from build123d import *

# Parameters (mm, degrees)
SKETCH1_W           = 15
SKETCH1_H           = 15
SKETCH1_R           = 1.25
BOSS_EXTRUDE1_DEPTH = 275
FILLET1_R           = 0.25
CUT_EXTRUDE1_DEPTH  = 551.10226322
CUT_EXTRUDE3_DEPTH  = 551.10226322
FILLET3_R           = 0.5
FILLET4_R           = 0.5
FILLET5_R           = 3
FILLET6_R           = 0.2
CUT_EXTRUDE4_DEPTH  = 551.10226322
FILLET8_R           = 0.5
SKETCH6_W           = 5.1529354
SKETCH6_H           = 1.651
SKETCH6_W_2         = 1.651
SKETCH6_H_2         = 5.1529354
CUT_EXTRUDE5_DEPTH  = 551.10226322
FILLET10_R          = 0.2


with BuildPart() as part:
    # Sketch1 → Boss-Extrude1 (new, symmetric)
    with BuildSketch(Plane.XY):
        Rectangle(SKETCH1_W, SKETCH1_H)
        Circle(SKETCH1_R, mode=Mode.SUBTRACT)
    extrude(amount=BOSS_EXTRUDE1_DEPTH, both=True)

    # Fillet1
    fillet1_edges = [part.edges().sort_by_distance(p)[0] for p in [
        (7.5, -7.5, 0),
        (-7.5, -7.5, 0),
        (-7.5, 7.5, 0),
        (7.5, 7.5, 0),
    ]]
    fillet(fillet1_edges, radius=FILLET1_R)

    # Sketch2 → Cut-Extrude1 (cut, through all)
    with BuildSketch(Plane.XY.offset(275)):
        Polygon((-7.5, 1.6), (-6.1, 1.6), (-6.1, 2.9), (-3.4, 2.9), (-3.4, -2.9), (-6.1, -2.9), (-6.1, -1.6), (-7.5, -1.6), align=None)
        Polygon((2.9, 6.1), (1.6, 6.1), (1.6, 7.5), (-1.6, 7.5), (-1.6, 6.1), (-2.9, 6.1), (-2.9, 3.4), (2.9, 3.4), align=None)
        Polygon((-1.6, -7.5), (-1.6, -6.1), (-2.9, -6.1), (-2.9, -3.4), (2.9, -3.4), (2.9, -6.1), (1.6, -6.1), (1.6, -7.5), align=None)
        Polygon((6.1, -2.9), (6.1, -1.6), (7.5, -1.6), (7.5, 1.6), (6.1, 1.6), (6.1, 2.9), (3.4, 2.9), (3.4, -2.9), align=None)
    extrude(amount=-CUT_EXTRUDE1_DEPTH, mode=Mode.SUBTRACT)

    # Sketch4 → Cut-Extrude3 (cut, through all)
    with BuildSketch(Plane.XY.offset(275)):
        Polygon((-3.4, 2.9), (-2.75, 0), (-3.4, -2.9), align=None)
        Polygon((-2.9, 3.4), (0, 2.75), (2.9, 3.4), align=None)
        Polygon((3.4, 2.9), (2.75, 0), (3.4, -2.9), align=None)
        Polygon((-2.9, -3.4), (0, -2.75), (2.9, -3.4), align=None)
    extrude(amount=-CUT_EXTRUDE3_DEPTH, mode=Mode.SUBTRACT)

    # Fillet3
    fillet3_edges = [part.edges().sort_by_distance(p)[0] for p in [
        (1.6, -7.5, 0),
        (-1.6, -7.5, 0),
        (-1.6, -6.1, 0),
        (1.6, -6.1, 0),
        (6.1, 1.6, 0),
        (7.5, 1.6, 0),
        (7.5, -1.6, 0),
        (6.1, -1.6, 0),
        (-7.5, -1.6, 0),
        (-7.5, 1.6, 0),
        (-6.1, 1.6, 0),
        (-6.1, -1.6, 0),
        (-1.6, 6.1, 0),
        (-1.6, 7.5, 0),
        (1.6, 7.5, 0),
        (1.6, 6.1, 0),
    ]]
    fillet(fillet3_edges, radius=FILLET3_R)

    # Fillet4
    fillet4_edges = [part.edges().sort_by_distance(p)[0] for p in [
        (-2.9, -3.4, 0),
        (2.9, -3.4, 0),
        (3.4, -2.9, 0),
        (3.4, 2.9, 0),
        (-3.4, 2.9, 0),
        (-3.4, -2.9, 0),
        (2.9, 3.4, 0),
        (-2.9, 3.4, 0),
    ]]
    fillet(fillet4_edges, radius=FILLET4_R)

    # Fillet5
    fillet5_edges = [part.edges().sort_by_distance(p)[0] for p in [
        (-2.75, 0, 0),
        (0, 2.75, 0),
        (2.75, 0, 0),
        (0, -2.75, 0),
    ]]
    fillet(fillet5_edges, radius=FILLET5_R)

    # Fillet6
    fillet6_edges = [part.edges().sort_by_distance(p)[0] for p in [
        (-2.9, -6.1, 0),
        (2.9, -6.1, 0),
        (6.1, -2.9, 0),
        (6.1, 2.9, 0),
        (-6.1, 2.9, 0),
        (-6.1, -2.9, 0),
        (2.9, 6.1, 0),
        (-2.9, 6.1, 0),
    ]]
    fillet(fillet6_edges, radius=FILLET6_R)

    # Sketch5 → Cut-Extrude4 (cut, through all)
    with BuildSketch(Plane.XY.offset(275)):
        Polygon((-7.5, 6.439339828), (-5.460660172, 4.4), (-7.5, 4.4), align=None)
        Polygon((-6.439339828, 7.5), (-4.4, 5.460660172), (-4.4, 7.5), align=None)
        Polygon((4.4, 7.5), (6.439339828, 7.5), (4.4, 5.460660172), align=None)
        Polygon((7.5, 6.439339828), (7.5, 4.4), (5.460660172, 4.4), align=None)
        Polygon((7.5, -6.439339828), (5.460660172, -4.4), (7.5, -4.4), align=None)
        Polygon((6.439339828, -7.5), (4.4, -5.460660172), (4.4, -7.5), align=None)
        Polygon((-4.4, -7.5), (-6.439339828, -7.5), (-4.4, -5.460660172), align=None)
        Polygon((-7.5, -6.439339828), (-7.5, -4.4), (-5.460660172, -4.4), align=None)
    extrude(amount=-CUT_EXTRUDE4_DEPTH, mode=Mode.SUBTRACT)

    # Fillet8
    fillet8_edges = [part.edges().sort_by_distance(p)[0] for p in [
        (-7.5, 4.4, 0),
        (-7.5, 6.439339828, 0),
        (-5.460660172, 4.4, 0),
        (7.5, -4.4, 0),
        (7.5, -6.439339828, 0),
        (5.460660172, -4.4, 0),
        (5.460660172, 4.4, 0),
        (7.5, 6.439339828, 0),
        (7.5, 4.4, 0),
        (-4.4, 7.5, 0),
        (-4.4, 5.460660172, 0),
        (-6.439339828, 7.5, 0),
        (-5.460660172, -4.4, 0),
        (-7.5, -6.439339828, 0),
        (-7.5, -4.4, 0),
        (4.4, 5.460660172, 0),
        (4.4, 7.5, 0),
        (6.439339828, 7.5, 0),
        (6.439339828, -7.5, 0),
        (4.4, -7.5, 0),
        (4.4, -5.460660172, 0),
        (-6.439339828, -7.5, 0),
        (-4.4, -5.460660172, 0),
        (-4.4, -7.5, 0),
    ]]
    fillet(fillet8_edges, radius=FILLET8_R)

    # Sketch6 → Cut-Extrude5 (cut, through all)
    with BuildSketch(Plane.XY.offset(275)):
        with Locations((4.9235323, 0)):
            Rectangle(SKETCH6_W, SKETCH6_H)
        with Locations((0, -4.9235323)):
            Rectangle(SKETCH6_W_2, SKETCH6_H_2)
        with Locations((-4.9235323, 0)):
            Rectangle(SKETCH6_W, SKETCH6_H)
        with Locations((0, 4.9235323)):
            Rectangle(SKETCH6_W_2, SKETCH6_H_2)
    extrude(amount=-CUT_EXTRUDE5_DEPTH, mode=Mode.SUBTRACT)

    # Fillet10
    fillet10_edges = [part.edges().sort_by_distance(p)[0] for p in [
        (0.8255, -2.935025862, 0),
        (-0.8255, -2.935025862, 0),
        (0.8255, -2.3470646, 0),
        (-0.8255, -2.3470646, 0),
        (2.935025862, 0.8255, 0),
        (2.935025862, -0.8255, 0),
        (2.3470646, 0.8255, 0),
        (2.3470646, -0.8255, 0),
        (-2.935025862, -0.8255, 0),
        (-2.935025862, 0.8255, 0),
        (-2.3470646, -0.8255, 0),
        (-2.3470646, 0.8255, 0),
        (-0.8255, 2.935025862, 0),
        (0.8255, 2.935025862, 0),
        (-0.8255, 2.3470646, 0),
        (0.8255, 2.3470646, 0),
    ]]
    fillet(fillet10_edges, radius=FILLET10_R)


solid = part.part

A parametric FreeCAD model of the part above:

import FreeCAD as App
import Part
import Sketcher

V = App.Vector


def edges_at(feature, points):
    """Names of the edges that pass closest to the given points."""
    edges = feature.Shape.Edges
    near = lambda p: min(range(len(edges)), key=lambda i: edges[i].distToShape(Part.Vertex(*p))[0])
    return sorted({f"Edge{near(p) + 1}" for p in points})


def add_polygon(sketch, points):
    """Adds a closed chain of lines whose ends are joined by coincident constraints."""
    first, n = sketch.GeometryCount, len(points)
    for a, b in zip(points, points[1:] + points[:1]):
        sketch.addGeometry(Part.LineSegment(App.Vector(*a, 0), App.Vector(*b, 0)), False)
    for i in range(n):
        sketch.addConstraint(Sketcher.Constraint("Coincident", first + i, 2, first + (i + 1) % n, 1))

doc = App.newDocument("Part")
body = doc.addObject("PartDesign::Body", "Body")

# Sketch on XY plane
sketch1 = body.newObject("Sketcher::SketchObject", "Sketch")
sketch1.AttachmentSupport = (doc.getObject("XY_Plane"), [""])
sketch1.MapMode = "FlatFace"
add_polygon(sketch1, [(-7.5, 7.5), (-7.5, -7.5), (7.5, -7.5), (7.5, 7.5)])  # lines 0-3
sketch1.addGeometry(Part.Circle(V(0, 0, 0), V(0, 0, 1), 1.2), False)  # 4
sketch1.addConstraint([
    Sketcher.Constraint("Vertical", 0),
    Sketcher.Constraint("Horizontal", 1),
    Sketcher.Constraint("Vertical", 2),
    Sketcher.Constraint("Horizontal", 3),
    Sketcher.Constraint("Coincident", 4, 3, -1, 1),
    Sketcher.Constraint("Symmetric", 0, 2, 2, 2, -1, 1),
    Sketcher.Constraint("Equal", 3, 0),
    Sketcher.Constraint("Diameter", 4, 2.5),
    Sketcher.Constraint("DistanceX", 1, 1, 1, 2, 15.0),
])
pad1 = body.newObject("PartDesign::Pad", "Pad")
pad1.Profile = sketch1
pad1.Length = 550
pad1.Midplane = True
doc.recompute()

fillet = body.newObject("PartDesign::Fillet", "Fillet")
fillet.Base = (pad1, edges_at(pad1, [
    (7.5, -7.5, 0),
    (-7.5, -7.5, 0),
    (-7.5, 7.5, 0),
    (7.5, 7.5, 0),
]))
fillet.Radius = 0.25

# Sketch on XY plane
sketch2 = body.newObject("Sketcher::SketchObject", "Sketch001")
sketch2.AttachmentSupport = (doc.getObject("XY_Plane"), [""])
sketch2.MapMode = "FlatFace"
sketch2.AttachmentOffset = App.Placement(V(0, 0, 275), App.Rotation())
add_polygon(sketch2, [(-6.1, 1.6), (-7.5, 1.6), (-7.5, -1.6), (-6.1, -1.6), (-6.1, -2.9), (-3.4, -2.9), (-3.4, 2.9), (-6.1, 2.9)])  # lines 0-7
add_polygon(sketch2, [(2.9, 6.1), (1.6, 6.1), (1.6, 7.5), (-1.6, 7.5), (-1.6, 6.1), (-2.9, 6.1), (-2.9, 3.4), (2.9, 3.4)])  # lines 8-15
add_polygon(sketch2, [(-1.6, -6.1), (-1.6, -7.5), (1.6, -7.5), (1.6, -6.1), (2.9, -6.1), (2.9, -3.4), (-2.9, -3.4), (-2.9, -6.1)])  # lines 16-23
add_polygon(sketch2, [(6.1, -2.9), (6.1, -1.6), (7.5, -1.6), (7.5, 1.6), (6.1, 1.6), (6.1, 2.9), (3.4, 2.9), (3.4, -2.9)])  # lines 24-31
sketch2.addConstraint([
    Sketcher.Constraint("Horizontal", 0),
    Sketcher.Constraint("Vertical", 1),
    Sketcher.Constraint("Horizontal", 2),
    Sketcher.Constraint("Vertical", 3),
    Sketcher.Constraint("Horizontal", 4),
    Sketcher.Constraint("Vertical", 5),
    Sketcher.Constraint("Horizontal", 6),
    Sketcher.Constraint("Vertical", 7),
    Sketcher.Constraint("Horizontal", 8),
    Sketcher.Constraint("Vertical", 9),
    Sketcher.Constraint("Horizontal", 10),
    Sketcher.Constraint("Vertical", 11),
    Sketcher.Constraint("Horizontal", 12),
    Sketcher.Constraint("Vertical", 13),
    Sketcher.Constraint("Horizontal", 14),
    Sketcher.Constraint("Vertical", 15),
    Sketcher.Constraint("Vertical", 16),
    Sketcher.Constraint("Horizontal", 17),
    Sketcher.Constraint("Vertical", 18),
    Sketcher.Constraint("Horizontal", 19),
    Sketcher.Constraint("Vertical", 20),
    Sketcher.Constraint("Horizontal", 21),
    Sketcher.Constraint("Vertical", 22),
    Sketcher.Constraint("Horizontal", 23),
    Sketcher.Constraint("Vertical", 24),
    Sketcher.Constraint("Horizontal", 25),
    Sketcher.Constraint("Vertical", 26),
    Sketcher.Constraint("Horizontal", 27),
    Sketcher.Constraint("Vertical", 28),
    Sketcher.Constraint("Horizontal", 29),
    Sketcher.Constraint("Vertical", 30),
    Sketcher.Constraint("Horizontal", 31),
    Sketcher.Constraint("Symmetric", 9, 2, 16, 2, -1, 1),
    Sketcher.Constraint("Symmetric", 11, 2, 18, 2, -1, 1),
    Sketcher.Constraint("Symmetric", 13, 2, 20, 2, -1, 1),
    Sketcher.Constraint("Symmetric", 15, 2, 22, 2, -1, 1),
    Sketcher.Constraint("Symmetric", 7, 2, 24, 2, -1, 1),
    Sketcher.Constraint("Symmetric", 1, 2, 26, 2, -1, 1),
    Sketcher.Constraint("Symmetric", 3, 2, 28, 2, -1, 1),
    Sketcher.Constraint("Symmetric", 5, 2, 30, 2, -1, 1),
    Sketcher.Constraint("Symmetric", 8, 2, 11, 2, -2),
    Sketcher.Constraint("Symmetric", 2, 2, 24, 2, -2),
    Sketcher.Constraint("Horizontal", 6, 2, 28, 2),
    Sketcher.Constraint("Vertical", 15, 2, 19, 2),
    Sketcher.Constraint("Equal", 17, 1),
    Sketcher.Constraint("Equal", 23, 3),
    Sketcher.Constraint("Equal", 27, 9),
    Sketcher.Constraint("Equal", 31, 13),
    Sketcher.Constraint("DistanceX", 0, 2, 0, 1, 1.4),
    Sketcher.Constraint("DistanceX", 4, 1, 4, 2, 2.7),
    Sketcher.Constraint("DistanceX", 8, 2, 8, 1, 1.3),
    Sketcher.Constraint("DistanceX", 10, 2, 10, 1, 3.2),
    Sketcher.Constraint("DistanceX", 5, 2, 8, 2, 5.0),
    Sketcher.Constraint("DistanceY", 4, 2, 8, 2, 9.0),
])
pocket1 = body.newObject("PartDesign::Pocket", "Pocket")
pocket1.Profile = sketch2
pocket1.Type = "ThroughAll"

# Sketch on XY plane
sketch3 = body.newObject("Sketcher::SketchObject", "Sketch002")
sketch3.AttachmentSupport = (doc.getObject("XY_Plane"), [""])
sketch3.MapMode = "FlatFace"
sketch3.AttachmentOffset = App.Placement(V(0, 0, 275), App.Rotation())
add_polygon(sketch3, [(-2.8, 0), (-3.4, 2.9), (-3.4, -2.9)])  # lines 0-2
add_polygon(sketch3, [(-2.9, 3.4), (0, 2.8), (2.9, 3.4)])  # lines 3-5
add_polygon(sketch3, [(3.4, 2.9), (2.8, 0), (3.4, -2.9)])  # lines 6-8
add_polygon(sketch3, [(0, -2.8), (-2.9, -3.4), (2.9, -3.4)])  # lines 9-11
sketch3.addConstraint([
    Sketcher.Constraint("Vertical", 1),
    Sketcher.Constraint("Horizontal", 5),
    Sketcher.Constraint("Vertical", 8),
    Sketcher.Constraint("Horizontal", 10),
    Sketcher.Constraint("Symmetric", 2, 2, 6, 2, -1, 1),
    Sketcher.Constraint("Symmetric", 0, 2, 7, 2, -1, 1),
    Sketcher.Constraint("Symmetric", 4, 2, 9, 2, -1, 1),
    Sketcher.Constraint("Symmetric", 3, 2, 11, 2, -1, 1),
    Sketcher.Constraint("PointOnObject", 2, 2, -1),
    Sketcher.Constraint("PointOnObject", 3, 2, -2),
    Sketcher.Constraint("Perpendicular", 2, 3),
    Sketcher.Constraint("Perpendicular", 0, 4),
    Sketcher.Constraint("Perpendicular", 3, 6),
    Sketcher.Constraint("Perpendicular", 6, 11),
    Sketcher.Constraint("Horizontal", 1, 2, 7, 2),
    Sketcher.Constraint("Equal", 10, 1),
    Sketcher.Constraint("DistanceX", 5, 2, 5, 1, 5.8),
    Sketcher.Constraint("DistanceX", 0, 2, -1, 1, 3.4),
    Sketcher.Constraint("DistanceY", -1, 1, 4, 2, 3.4),
    Sketcher.Constraint("DistanceX", 2, 2, 6, 2, 5.5),
])
pocket2 = body.newObject("PartDesign::Pocket", "Pocket001")
pocket2.Profile = sketch3
pocket2.Type = "ThroughAll"
doc.recompute()

fillet2 = body.newObject("PartDesign::Fillet", "Fillet001")
fillet2.Base = (pocket2, edges_at(pocket2, [
    (1.6, -7.5, 0),
    (-1.6, -7.5, 0),
    (-1.6, -6.1, 0),
    (1.6, -6.1, 0),
    (6.1, 1.6, 0),
    (7.5, 1.6, 0),
    (7.5, -1.6, 0),
    (6.1, -1.6, 0),
    (-7.5, -1.6, 0),
    (-7.5, 1.6, 0),
    (-6.1, 1.6, 0),
    (-6.1, -1.6, 0),
    (-1.6, 6.1, 0),
    (-1.6, 7.5, 0),
    (1.6, 7.5, 0),
    (1.6, 6.1, 0),
]))
fillet2.Radius = 0.5
doc.recompute()

fillet3 = body.newObject("PartDesign::Fillet", "Fillet002")
fillet3.Base = (fillet2, edges_at(fillet2, [
    (-2.9, -3.4, 0),
    (2.9, -3.4, 0),
    (3.4, -2.9, 0),
    (3.4, 2.9, 0),
    (-3.4, 2.9, 0),
    (-3.4, -2.9, 0),
    (2.9, 3.4, 0),
    (-2.9, 3.4, 0),
]))
fillet3.Radius = 0.5
doc.recompute()

fillet4 = body.newObject("PartDesign::Fillet", "Fillet003")
fillet4.Base = (fillet3, edges_at(fillet3, [
    (-2.75, 0, 0),
    (0, 2.75, 0),
    (2.75, 0, 0),
    (0, -2.75, 0),
]))
fillet4.Radius = 3
doc.recompute()

fillet5 = body.newObject("PartDesign::Fillet", "Fillet004")
fillet5.Base = (fillet4, edges_at(fillet4, [
    (-2.9, -6.1, 0),
    (2.9, -6.1, 0),
    (6.1, -2.9, 0),
    (6.1, 2.9, 0),
    (-6.1, 2.9, 0),
    (-6.1, -2.9, 0),
    (2.9, 6.1, 0),
    (-2.9, 6.1, 0),
]))
fillet5.Radius = 0.2

# Sketch on XY plane
sketch4 = body.newObject("Sketcher::SketchObject", "Sketch003")
sketch4.AttachmentSupport = (doc.getObject("XY_Plane"), [""])
sketch4.MapMode = "FlatFace"
sketch4.AttachmentOffset = App.Placement(V(0, 0, 275), App.Rotation())
add_polygon(sketch4, [(-5.5, 4.4), (-7.5, 6.4), (-7.5, 4.4)])  # lines 0-2
add_polygon(sketch4, [(-6.4, 7.5), (-4.4, 5.5), (-4.4, 7.5)])  # lines 3-5
add_polygon(sketch4, [(6.4, 7.5), (4.4, 7.5), (4.4, 5.5)])  # lines 6-8
add_polygon(sketch4, [(7.5, 4.4), (7.5, 6.4), (5.5, 4.4)])  # lines 9-11
add_polygon(sketch4, [(5.5, -4.4), (7.5, -6.4), (7.5, -4.4)])  # lines 12-14
add_polygon(sketch4, [(6.4, -7.5), (4.4, -5.5), (4.4, -7.5)])  # lines 15-17
add_polygon(sketch4, [(-6.4, -7.5), (-4.4, -7.5), (-4.4, -5.5)])  # lines 18-20
add_polygon(sketch4, [(-7.5, -4.4), (-7.5, -6.4), (-5.5, -4.4)])  # lines 21-23
sketch4.addConstraint([
    Sketcher.Constraint("Vertical", 1),
    Sketcher.Constraint("Horizontal", 2),
    Sketcher.Constraint("Vertical", 4),
    Sketcher.Constraint("Horizontal", 5),
    Sketcher.Constraint("Horizontal", 6),
    Sketcher.Constraint("Vertical", 7),
    Sketcher.Constraint("Vertical", 9),
    Sketcher.Constraint("Horizontal", 11),
    Sketcher.Constraint("Vertical", 13),
    Sketcher.Constraint("Horizontal", 14),
    Sketcher.Constraint("Vertical", 16),
    Sketcher.Constraint("Horizontal", 17),
    Sketcher.Constraint("Horizontal", 18),
    Sketcher.Constraint("Vertical", 19),
    Sketcher.Constraint("Vertical", 21),
    Sketcher.Constraint("Horizontal", 23),
    Sketcher.Constraint("Symmetric", 0, 2, 12, 2, -1, 1),
    Sketcher.Constraint("Symmetric", 2, 2, 14, 2, -1, 1),
    Sketcher.Constraint("Symmetric", 3, 2, 15, 2, -1, 1),
    Sketcher.Constraint("Symmetric", 5, 2, 17, 2, -1, 1),
    Sketcher.Constraint("Symmetric", 6, 2, 18, 2, -1, 1),
    Sketcher.Constraint("Symmetric", 9, 2, 21, 2, -1, 1),
    Sketcher.Constraint("Symmetric", 10, 2, 22, 2, -1, 1),
    Sketcher.Constraint("Symmetric", 4, 2, 6, 2, -2),
    Sketcher.Constraint("Symmetric", 0, 2, 9, 2, -2),
    Sketcher.Constraint("Symmetric", 2, 2, 10, 2, -2),
    Sketcher.Constraint("Parallel", 0, 3),
    Sketcher.Constraint("Perpendicular", 3, 8),
    Sketcher.Constraint("Parallel", 8, 10),
    Sketcher.Constraint("Perpendicular", 15, 20),
    Sketcher.Constraint("Horizontal", 3, 2, 7, 2),
    Sketcher.Constraint("Horizontal", 15, 2, 19, 2),
    Sketcher.Constraint("Equal", 2, 5),
    Sketcher.Constraint("DistanceX", 0, 2, -1, 1, 7.5),
    Sketcher.Constraint("DistanceY", -1, 1, 1, 2, 4.4),
    Sketcher.Constraint("DistanceX", 3, 2, -1, 1, 4.4),
    Sketcher.Constraint("DistanceY", -1, 1, 4, 2, 7.5),
    Sketcher.Constraint("DistanceX", 2, 1, 2, 2, 2.03934),
])
pocket3 = body.newObject("PartDesign::Pocket", "Pocket002")
pocket3.Profile = sketch4
pocket3.Type = "ThroughAll"
doc.recompute()

fillet6 = body.newObject("PartDesign::Fillet", "Fillet005")
fillet6.Base = (pocket3, edges_at(pocket3, [
    (-7.5, 4.4, 0),
    (-7.5, 6.439, 0),
    (-5.461, 4.4, 0),
    (7.5, -4.4, 0),
    (7.5, -6.439, 0),
    (5.461, -4.4, 0),
    (5.461, 4.4, 0),
    (7.5, 6.439, 0),
    (7.5, 4.4, 0),
    (-4.4, 7.5, 0),
    (-4.4, 5.461, 0),
    (-6.439, 7.5, 0),
    (-5.461, -4.4, 0),
    (-7.5, -6.439, 0),
    (-7.5, -4.4, 0),
    (4.4, 5.461, 0),
    (4.4, 7.5, 0),
    (6.439, 7.5, 0),
    (6.439, -7.5, 0),
    (4.4, -7.5, 0),
    (4.4, -5.461, 0),
    (-6.439, -7.5, 0),
    (-4.4, -5.461, 0),
    (-4.4, -7.5, 0),
]))
fillet6.Radius = 0.5

# Sketch on XY plane
sketch5 = body.newObject("Sketcher::SketchObject", "Sketch004")
sketch5.AttachmentSupport = (doc.getObject("XY_Plane"), [""])
sketch5.MapMode = "FlatFace"
sketch5.AttachmentOffset = App.Placement(V(0, 0, 275), App.Rotation())
add_polygon(sketch5, [(2.3, 0.8), (2.3, -0.8), (7.5, -0.8), (7.5, 0.8)])  # lines 0-3
add_polygon(sketch5, [(-0.8, -2.3), (-0.8, -7.5), (0.8, -7.5), (0.8, -2.3)])  # lines 4-7
add_polygon(sketch5, [(-7.5, 0.8), (-7.5, -0.8), (-2.3, -0.8), (-2.3, 0.8)])  # lines 8-11
add_polygon(sketch5, [(-0.8, 7.5), (-0.8, 2.3), (0.8, 2.3), (0.8, 7.5)])  # lines 12-15
sketch5.addConstraint([
    Sketcher.Constraint("Vertical", 0),
    Sketcher.Constraint("Horizontal", 1),
    Sketcher.Constraint("Vertical", 2),
    Sketcher.Constraint("Horizontal", 3),
    Sketcher.Constraint("Vertical", 4),
    Sketcher.Constraint("Horizontal", 5),
    Sketcher.Constraint("Vertical", 6),
    Sketcher.Constraint("Horizontal", 7),
    Sketcher.Constraint("Vertical", 8),
    Sketcher.Constraint("Horizontal", 9),
    Sketcher.Constraint("Vertical", 10),
    Sketcher.Constraint("Horizontal", 11),
    Sketcher.Constraint("Vertical", 12),
    Sketcher.Constraint("Horizontal", 13),
    Sketcher.Constraint("Vertical", 14),
    Sketcher.Constraint("Horizontal", 15),
    Sketcher.Constraint("Symmetric", 2, 2, 8, 2, -1, 1),
    Sketcher.Constraint("Symmetric", 0, 2, 10, 2, -1, 1),
    Sketcher.Constraint("Symmetric", 6, 2, 12, 2, -1, 1),
    Sketcher.Constraint("Symmetric", 4, 2, 14, 2, -1, 1),
    Sketcher.Constraint("Horizontal", 1, 2, 8, 2),
    Sketcher.Constraint("Vertical", 7, 2, 12, 2),
    Sketcher.Constraint("Equal", 15, 0),
    Sketcher.Constraint("Equal", 11, 4),
    Sketcher.Constraint("DistanceX", -1, 1, 1, 2, 7.5),
    Sketcher.Constraint("DistanceY", 4, 2, -1, 1, 7.5),
    Sketcher.Constraint("DistanceX", 5, 1, 5, 2, 1.651),
    Sketcher.Constraint("DistanceX", 1, 1, 1, 2, 5.152935),
])
pocket4 = body.newObject("PartDesign::Pocket", "Pocket003")
pocket4.Profile = sketch5
pocket4.Type = "ThroughAll"
doc.recompute()

fillet7 = body.newObject("PartDesign::Fillet", "Fillet006")
fillet7.Base = (pocket4, edges_at(pocket4, [
    (0.826, -2.935, 0),
    (-0.826, -2.935, 0),
    (0.826, -2.347, 0),
    (-0.826, -2.347, 0),
    (2.935, 0.826, 0),
    (2.935, -0.826, 0),
    (2.347, 0.826, 0),
    (2.347, -0.826, 0),
    (-2.935, -0.826, 0),
    (-2.935, 0.826, 0),
    (-2.347, -0.826, 0),
    (-2.347, 0.826, 0),
    (-0.826, 2.935, 0),
    (0.826, 2.935, 0),
    (-0.826, 2.347, 0),
    (0.826, 2.347, 0),
]))
fillet7.Radius = 0.2

doc.recompute()
